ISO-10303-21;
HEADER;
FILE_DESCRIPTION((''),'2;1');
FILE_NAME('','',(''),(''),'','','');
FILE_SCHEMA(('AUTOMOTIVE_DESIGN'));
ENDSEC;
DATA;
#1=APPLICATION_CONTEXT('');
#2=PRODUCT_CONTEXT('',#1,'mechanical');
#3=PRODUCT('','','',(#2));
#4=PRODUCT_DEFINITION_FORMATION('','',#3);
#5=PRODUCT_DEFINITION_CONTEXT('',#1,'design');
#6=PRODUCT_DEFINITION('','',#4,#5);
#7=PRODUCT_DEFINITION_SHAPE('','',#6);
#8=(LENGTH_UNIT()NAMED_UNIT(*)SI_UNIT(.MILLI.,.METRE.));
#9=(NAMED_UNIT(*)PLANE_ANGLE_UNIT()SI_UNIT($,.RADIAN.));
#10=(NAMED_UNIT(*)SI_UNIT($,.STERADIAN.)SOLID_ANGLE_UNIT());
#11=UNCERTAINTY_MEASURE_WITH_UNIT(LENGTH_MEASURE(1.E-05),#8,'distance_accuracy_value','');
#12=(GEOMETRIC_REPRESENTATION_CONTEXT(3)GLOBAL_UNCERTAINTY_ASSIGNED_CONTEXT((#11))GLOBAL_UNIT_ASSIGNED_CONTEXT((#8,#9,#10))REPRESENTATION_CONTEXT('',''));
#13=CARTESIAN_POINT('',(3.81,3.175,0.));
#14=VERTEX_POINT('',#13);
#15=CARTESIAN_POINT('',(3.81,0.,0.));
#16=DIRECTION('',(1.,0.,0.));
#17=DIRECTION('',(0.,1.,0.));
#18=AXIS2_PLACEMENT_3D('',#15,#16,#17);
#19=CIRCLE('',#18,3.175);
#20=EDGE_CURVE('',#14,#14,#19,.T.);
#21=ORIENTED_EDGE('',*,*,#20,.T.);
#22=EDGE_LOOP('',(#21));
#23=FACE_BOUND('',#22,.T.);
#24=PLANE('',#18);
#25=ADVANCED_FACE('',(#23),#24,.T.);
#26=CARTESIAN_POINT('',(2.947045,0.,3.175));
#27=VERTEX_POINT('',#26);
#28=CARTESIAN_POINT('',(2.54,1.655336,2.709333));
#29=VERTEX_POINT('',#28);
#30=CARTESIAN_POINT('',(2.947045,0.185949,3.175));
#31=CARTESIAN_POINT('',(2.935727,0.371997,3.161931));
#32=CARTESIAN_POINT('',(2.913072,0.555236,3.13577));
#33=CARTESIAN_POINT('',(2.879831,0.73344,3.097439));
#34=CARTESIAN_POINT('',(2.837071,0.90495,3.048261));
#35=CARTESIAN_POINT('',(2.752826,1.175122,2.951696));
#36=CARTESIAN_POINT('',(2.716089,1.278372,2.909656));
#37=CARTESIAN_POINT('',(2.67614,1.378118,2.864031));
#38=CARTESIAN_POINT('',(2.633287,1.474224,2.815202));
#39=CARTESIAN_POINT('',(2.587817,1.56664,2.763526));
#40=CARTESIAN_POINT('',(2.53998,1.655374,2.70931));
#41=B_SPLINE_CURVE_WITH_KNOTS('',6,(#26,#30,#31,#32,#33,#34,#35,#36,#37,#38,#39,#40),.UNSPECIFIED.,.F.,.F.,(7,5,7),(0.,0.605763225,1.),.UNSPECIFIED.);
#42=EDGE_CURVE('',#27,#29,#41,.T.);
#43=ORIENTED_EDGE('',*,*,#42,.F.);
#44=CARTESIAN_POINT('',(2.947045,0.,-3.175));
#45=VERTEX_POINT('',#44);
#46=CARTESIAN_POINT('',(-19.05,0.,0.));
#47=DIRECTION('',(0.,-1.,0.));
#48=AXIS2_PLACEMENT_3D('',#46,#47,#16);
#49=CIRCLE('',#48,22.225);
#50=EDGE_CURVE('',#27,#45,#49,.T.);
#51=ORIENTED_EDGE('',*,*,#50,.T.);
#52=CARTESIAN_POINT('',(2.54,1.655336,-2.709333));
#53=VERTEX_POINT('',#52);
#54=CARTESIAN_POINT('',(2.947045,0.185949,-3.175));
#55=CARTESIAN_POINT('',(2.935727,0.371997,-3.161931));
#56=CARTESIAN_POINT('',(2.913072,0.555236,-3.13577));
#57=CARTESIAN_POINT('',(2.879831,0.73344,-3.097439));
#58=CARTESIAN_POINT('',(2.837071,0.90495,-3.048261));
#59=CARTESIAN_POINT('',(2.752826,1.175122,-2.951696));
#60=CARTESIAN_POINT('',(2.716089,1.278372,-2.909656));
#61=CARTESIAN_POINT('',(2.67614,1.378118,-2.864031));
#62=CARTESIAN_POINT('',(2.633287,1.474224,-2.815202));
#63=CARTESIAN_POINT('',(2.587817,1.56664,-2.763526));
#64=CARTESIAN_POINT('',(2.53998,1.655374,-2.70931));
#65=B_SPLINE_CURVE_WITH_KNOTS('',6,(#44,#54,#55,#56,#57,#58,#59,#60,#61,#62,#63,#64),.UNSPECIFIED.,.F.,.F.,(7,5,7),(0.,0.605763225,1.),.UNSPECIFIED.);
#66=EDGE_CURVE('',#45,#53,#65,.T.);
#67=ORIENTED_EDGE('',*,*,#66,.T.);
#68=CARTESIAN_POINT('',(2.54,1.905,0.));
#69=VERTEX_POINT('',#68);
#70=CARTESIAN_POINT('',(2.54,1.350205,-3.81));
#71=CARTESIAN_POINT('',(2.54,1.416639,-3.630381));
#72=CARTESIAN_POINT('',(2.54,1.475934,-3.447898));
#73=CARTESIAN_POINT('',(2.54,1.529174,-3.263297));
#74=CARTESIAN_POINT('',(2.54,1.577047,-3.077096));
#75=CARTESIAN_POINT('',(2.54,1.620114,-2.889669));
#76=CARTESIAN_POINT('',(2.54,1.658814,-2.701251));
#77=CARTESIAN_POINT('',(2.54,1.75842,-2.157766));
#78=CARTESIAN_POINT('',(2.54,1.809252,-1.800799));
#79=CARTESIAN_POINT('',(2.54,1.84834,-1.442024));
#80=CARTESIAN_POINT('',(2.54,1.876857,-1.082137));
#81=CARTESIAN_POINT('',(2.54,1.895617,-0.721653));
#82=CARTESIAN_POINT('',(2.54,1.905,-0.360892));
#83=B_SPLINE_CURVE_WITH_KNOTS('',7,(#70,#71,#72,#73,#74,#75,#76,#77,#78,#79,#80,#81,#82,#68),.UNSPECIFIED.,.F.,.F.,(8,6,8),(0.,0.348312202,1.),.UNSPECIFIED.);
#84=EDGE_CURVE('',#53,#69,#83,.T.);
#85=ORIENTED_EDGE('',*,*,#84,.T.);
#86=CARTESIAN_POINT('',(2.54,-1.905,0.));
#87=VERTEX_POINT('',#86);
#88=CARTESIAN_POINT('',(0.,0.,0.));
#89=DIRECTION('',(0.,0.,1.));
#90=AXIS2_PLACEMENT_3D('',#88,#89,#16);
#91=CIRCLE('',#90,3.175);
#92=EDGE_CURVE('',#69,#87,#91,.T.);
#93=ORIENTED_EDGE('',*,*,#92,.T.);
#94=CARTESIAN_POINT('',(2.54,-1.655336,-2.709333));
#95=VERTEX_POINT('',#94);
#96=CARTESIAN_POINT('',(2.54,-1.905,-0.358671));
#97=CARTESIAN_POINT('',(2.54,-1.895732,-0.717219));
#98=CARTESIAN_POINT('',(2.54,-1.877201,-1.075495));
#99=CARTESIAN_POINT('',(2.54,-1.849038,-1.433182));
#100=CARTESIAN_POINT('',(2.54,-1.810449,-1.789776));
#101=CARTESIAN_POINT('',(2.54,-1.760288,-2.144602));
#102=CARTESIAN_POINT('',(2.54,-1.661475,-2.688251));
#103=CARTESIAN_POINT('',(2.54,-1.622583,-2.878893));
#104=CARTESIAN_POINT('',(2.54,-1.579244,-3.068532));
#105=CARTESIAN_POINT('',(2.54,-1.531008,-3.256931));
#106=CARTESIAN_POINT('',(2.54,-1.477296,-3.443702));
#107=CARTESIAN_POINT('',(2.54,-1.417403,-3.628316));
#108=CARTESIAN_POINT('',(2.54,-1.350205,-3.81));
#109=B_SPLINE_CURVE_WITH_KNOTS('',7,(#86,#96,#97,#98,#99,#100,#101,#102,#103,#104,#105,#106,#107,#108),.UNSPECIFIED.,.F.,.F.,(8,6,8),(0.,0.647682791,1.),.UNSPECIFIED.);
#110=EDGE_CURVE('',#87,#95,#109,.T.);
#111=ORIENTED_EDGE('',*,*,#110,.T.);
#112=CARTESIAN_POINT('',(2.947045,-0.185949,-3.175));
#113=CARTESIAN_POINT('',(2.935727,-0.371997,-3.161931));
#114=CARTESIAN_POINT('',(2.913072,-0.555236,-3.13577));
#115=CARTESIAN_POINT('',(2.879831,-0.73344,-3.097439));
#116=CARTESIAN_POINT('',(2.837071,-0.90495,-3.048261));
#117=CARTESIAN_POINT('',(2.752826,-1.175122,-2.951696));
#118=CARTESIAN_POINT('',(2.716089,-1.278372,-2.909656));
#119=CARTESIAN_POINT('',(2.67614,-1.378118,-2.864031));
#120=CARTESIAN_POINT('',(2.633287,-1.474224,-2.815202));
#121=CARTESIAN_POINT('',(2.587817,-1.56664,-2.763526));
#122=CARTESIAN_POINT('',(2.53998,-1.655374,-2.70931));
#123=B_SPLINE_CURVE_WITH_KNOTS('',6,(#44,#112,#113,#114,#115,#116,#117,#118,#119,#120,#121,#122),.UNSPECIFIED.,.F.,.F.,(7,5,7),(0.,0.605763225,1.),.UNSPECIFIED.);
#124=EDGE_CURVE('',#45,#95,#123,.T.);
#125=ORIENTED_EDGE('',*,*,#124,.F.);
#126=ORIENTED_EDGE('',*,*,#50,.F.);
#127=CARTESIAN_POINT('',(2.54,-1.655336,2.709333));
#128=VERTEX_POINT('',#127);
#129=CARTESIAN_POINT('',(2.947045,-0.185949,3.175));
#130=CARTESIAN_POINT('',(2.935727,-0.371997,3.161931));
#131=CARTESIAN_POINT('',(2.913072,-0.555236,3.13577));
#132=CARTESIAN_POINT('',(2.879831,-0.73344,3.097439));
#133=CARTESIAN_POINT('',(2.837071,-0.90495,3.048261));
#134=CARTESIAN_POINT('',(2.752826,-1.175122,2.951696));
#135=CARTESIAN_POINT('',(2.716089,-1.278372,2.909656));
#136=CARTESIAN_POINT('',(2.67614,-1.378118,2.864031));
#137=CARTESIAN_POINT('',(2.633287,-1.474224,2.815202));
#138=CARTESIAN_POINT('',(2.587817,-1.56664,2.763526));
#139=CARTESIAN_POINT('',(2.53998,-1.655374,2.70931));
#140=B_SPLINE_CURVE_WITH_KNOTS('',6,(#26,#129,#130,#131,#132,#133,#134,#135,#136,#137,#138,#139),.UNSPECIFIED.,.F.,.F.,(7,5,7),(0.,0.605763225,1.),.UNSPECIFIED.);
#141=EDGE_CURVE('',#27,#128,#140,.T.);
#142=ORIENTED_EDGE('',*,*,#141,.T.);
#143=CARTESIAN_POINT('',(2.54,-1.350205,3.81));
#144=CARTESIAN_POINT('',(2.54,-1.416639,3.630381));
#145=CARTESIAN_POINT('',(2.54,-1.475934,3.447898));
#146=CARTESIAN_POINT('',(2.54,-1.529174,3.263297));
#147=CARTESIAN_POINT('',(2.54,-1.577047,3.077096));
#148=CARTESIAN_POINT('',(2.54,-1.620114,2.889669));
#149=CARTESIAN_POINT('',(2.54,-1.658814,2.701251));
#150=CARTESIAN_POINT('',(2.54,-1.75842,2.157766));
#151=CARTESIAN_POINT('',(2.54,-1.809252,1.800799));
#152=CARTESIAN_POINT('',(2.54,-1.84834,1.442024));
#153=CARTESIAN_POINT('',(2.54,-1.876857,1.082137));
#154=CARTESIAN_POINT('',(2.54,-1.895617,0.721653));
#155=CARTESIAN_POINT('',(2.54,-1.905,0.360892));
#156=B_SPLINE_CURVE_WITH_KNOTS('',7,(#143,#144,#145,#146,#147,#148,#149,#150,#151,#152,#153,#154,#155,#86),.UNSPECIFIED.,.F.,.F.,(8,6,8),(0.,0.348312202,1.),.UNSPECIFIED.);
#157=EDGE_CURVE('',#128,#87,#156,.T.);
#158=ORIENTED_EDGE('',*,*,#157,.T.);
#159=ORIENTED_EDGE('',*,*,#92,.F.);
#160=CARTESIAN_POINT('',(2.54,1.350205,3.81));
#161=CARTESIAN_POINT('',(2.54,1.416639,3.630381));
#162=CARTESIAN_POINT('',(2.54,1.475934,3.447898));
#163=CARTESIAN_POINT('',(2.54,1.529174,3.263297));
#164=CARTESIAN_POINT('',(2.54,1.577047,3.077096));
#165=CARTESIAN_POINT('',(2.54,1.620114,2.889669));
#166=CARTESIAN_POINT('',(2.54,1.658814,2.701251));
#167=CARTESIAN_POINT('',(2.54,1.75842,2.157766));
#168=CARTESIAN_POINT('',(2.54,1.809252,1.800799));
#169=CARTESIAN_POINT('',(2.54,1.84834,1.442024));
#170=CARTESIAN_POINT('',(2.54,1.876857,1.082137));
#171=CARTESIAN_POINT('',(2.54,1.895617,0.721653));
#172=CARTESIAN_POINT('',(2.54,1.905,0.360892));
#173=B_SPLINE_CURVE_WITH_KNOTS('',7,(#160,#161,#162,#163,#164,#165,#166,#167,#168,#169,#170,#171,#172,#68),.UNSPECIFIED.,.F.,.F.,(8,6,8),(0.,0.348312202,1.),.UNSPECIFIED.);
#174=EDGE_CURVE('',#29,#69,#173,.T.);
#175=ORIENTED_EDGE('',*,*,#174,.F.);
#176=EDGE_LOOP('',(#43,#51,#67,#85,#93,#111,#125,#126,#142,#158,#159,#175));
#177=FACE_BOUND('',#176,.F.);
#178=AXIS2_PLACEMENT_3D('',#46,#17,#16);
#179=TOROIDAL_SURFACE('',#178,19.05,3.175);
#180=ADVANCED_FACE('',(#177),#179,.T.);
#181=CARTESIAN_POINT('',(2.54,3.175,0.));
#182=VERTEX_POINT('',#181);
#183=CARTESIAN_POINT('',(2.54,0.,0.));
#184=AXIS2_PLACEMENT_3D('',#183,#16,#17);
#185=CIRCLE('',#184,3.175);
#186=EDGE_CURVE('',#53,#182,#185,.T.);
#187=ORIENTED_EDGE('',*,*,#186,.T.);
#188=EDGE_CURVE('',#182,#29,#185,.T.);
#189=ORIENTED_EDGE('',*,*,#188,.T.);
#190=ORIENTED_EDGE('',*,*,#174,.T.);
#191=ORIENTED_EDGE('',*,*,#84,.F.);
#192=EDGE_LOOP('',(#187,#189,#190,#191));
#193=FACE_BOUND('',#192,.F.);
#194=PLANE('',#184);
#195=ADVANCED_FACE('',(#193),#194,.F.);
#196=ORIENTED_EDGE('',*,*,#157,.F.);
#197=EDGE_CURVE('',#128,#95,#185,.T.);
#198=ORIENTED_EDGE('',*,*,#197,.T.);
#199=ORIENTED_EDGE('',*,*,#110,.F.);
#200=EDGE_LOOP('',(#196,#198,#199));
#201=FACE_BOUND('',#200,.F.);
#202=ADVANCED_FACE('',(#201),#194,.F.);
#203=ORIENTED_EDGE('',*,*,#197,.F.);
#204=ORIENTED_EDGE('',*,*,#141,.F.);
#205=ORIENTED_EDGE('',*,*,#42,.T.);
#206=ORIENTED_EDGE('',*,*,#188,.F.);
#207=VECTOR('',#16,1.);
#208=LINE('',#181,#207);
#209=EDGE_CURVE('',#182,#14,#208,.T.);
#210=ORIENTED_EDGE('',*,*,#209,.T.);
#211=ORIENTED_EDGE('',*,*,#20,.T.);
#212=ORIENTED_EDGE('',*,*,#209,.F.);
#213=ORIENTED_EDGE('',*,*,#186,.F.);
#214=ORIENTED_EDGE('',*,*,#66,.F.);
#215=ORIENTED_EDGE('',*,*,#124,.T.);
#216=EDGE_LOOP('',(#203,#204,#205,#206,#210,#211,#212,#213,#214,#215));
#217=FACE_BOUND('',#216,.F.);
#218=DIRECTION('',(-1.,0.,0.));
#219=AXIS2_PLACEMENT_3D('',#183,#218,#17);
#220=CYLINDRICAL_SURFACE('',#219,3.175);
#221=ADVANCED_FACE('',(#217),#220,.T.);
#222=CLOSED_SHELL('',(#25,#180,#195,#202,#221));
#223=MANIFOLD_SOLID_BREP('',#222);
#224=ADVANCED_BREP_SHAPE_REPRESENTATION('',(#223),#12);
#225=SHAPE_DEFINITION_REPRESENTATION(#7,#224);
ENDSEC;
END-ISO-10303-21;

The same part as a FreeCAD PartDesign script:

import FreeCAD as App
import Part
import Sketcher
Q = App.Units.Quantity

doc = App.newDocument("Part")
body = doc.addObject("PartDesign::Body", "Body")

# Sketch on XY plane
sketch1 = body.newObject("Sketcher::SketchObject", "Sketch")
sketch1.AttachmentSupport = (doc.getObject("XY_Plane"), [""])
sketch1.MapMode = "FlatFace"
sketch1.addGeometry(Part.Circle(App.Vector(0, 0, 0), App.Vector(0, 0, 1), 3.2), False)
sketch1.addGeometry(Part.LineSegment(App.Vector(-19.1, 0, 0), App.Vector(-19.1, -10, 0)), True)  # axis
sketch1.addConstraint(Sketcher.Constraint("Vertical", 1))
sketch1.addConstraint(Sketcher.Constraint("Coincident", 0, 3, -1, 1))
sketch1.addConstraint(Sketcher.Constraint("PointOnObject", 1, 1, -1))
sketch1.addConstraint(Sketcher.Constraint("Diameter", 0, Q("0.25 in")))
sketch1.addConstraint(Sketcher.Constraint("DistanceX", 1, 1, -1, 1, Q("0.75 in")))
sketch1.addConstraint(Sketcher.Constraint("DistanceY", 1, 2, 1, 1, Q("0.3937 in")))
revolution = body.newObject("PartDesign::Revolution", "Revolution")
revolution.Profile = sketch1
revolution.ReferenceAxis = (sketch1, ["Axis0"])
revolution.Angle = 360

# Sketch on YZ plane
sketch2 = body.newObject("Sketcher::SketchObject", "Sketch001")
sketch2.AttachmentSupport = (doc.getObject("YZ_Plane"), [""])
sketch2.MapMode = "FlatFace"
sketch2.AttachmentOffset = App.Placement(App.Vector(0, 0, 0.1 * 25.4), App.Rotation())
sketch2.addGeometry(Part.Circle(App.Vector(0, 0, 0), App.Vector(0, 0, 1), 3.2), False)
sketch2.addConstraint(Sketcher.Constraint("Coincident", 0, 3, -1, 1))
sketch2.addConstraint(Sketcher.Constraint("Diameter", 0, Q("0.25 in")))
pad1 = body.newObject("PartDesign::Pad", "Pad")
pad1.Profile = sketch2
pad1.Length = Q("0.05 in")

doc.recompute()
